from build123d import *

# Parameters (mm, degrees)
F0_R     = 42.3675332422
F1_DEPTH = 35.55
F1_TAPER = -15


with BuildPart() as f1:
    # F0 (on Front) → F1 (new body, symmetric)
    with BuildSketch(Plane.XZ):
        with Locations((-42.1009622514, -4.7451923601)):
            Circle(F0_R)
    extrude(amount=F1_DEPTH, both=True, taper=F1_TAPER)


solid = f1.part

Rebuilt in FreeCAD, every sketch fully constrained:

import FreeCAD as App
import Part
import Sketcher

V = App.Vector

doc = App.newDocument("Part")
body = doc.addObject("PartDesign::Body", "Body")

sketch1 = body.newObject("Sketcher::SketchObject", "Sketch")
sketch1.AttachmentSupport = (doc.getObject("XZ_Plane"), [""])
sketch1.MapMode = "FlatFace"
sketch1.addGeometry(Part.Circle(V(-42, -5, 0), V(0, 0, 1), 42), False)
sketch1.addConstraint(Sketcher.Constraint("Diameter", 0, 84.735066))
sketch1.addConstraint(Sketcher.Constraint("DistanceX", 0, 3, -1, 1, 42.100962))
sketch1.addConstraint(Sketcher.Constraint("DistanceY", 0, 3, -1, 1, 4.745192))
pad1 = body.newObject("PartDesign::Pad", "Pad")
pad1.Profile = sketch1
pad1.Length = 71.1
pad1.Midplane = True
pad1.TaperAngle = 15

doc.recompute()
